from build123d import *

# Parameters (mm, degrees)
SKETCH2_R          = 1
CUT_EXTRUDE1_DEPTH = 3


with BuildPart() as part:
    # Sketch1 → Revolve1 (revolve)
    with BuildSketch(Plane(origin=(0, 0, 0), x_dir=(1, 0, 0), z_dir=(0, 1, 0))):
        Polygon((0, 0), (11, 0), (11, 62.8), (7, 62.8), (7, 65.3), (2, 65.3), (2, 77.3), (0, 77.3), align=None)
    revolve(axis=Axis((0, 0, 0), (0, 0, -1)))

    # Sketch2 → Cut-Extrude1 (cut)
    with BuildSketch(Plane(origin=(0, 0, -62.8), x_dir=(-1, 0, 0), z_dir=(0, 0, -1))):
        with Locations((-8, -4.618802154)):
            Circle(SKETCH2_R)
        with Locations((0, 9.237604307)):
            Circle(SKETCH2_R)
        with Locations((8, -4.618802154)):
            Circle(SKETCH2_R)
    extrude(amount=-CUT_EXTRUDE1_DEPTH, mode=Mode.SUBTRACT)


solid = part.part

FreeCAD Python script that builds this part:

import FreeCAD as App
import Part
import Sketcher
Q = App.Units.Quantity


def add_polygon(sketch, points):
    """Adds a closed chain of lines whose ends are joined by coincident constraints."""
    first, n = sketch.GeometryCount, len(points)
    for a, b in zip(points, points[1:] + points[:1]):
        sketch.addGeometry(Part.LineSegment(App.Vector(*a, 0), App.Vector(*b, 0)), False)
    for i in range(n):
        sketch.addConstraint(Sketcher.Constraint("Coincident", first + i, 2, first + (i + 1) % n, 1))

doc = App.newDocument("Part")
body = doc.addObject("PartDesign::Body", "Body")

# Sketch on XZ plane
sketch1 = body.newObject("Sketcher::SketchObject", "Sketch")
sketch1.AttachmentSupport = (doc.getObject("XZ_Plane"), [""])
sketch1.MapMode = "FlatFace"
add_polygon(sketch1, [(0, 0), (11, 0), (11, -62.8), (7, -62.8), (7, -65.3), (2, -65.3), (2, -77.3), (0, -77.3)])  # lines 0-7
sketch1.addConstraint(Sketcher.Constraint("Horizontal", 0))
sketch1.addConstraint(Sketcher.Constraint("Vertical", 1))
sketch1.addConstraint(Sketcher.Constraint("Horizontal", 2))
sketch1.addConstraint(Sketcher.Constraint("Vertical", 3))
sketch1.addConstraint(Sketcher.Constraint("Horizontal", 4))
sketch1.addConstraint(Sketcher.Constraint("Vertical", 5))
sketch1.addConstraint(Sketcher.Constraint("Horizontal", 6))
sketch1.addConstraint(Sketcher.Constraint("Vertical", 7))
sketch1.addConstraint(Sketcher.Constraint("Coincident", 7, 2, -1, 1))
sketch1.addConstraint(Sketcher.Constraint("DistanceX", 0, 1, 0, 2, Q("11 mm")))
sketch1.addConstraint(Sketcher.Constraint("DistanceX", 2, 2, 2, 1, Q("4 mm")))
sketch1.addConstraint(Sketcher.Constraint("DistanceX", 4, 2, 4, 1, Q("5 mm")))
sketch1.addConstraint(Sketcher.Constraint("DistanceY", 5, 2, 5, 1, Q("12 mm")))
sketch1.addConstraint(Sketcher.Constraint("DistanceY", 1, 2, 1, 1, Q("62.8 mm")))
sketch1.addConstraint(Sketcher.Constraint("DistanceY", 3, 2, 3, 1, Q("2.5 mm")))
revolution = body.newObject("PartDesign::Revolution", "Revolution")
revolution.Profile = sketch1
revolution.ReferenceAxis = (sketch1, ["V_Axis"])
revolution.Angle = 360

# Sketch on XY plane
sketch2 = body.newObject("Sketcher::SketchObject", "Sketch001")
sketch2.AttachmentSupport = (doc.getObject("XY_Plane"), [""])
sketch2.MapMode = "FlatFace"
sketch2.AttachmentOffset = App.Placement(App.Vector(0, 0, -62.8), App.Rotation())
sketch2.addGeometry(Part.Circle(App.Vector(8, -4.618802, 0), App.Vector(0, 0, 1), 1), False)
sketch2.addGeometry(Part.Circle(App.Vector(0, 9.237604, 0), App.Vector(0, 0, 1), 1), False)
sketch2.addGeometry(Part.Circle(App.Vector(-8, -4.618802, 0), App.Vector(0, 0, 1), 1), False)
sketch2.addConstraint(Sketcher.Constraint("Equal", 0, 1))
sketch2.addConstraint(Sketcher.Constraint("Equal", 1, 2))
sketch2.addConstraint(Sketcher.Constraint("Symmetric", 0, 3, 2, 3, -2))
sketch2.addConstraint(Sketcher.Constraint("PointOnObject", 1, 3, -2))
sketch2.addConstraint(Sketcher.Constraint("Diameter", 0, Q("2 mm")))
sketch2.addConstraint(Sketcher.Constraint("DistanceX", -1, 1, 0, 3, Q("8 mm")))
sketch2.addConstraint(Sketcher.Constraint("DistanceY", 0, 3, -1, 1, Q("4.618802 mm")))
sketch2.addConstraint(Sketcher.Constraint("DistanceY", -1, 1, 1, 3, Q("9.237604 mm")))
pocket1 = body.newObject("PartDesign::Pocket", "Pocket")
pocket1.Profile = sketch2
pocket1.Length = 3
pocket1.Reversed = True

doc.recompute()
